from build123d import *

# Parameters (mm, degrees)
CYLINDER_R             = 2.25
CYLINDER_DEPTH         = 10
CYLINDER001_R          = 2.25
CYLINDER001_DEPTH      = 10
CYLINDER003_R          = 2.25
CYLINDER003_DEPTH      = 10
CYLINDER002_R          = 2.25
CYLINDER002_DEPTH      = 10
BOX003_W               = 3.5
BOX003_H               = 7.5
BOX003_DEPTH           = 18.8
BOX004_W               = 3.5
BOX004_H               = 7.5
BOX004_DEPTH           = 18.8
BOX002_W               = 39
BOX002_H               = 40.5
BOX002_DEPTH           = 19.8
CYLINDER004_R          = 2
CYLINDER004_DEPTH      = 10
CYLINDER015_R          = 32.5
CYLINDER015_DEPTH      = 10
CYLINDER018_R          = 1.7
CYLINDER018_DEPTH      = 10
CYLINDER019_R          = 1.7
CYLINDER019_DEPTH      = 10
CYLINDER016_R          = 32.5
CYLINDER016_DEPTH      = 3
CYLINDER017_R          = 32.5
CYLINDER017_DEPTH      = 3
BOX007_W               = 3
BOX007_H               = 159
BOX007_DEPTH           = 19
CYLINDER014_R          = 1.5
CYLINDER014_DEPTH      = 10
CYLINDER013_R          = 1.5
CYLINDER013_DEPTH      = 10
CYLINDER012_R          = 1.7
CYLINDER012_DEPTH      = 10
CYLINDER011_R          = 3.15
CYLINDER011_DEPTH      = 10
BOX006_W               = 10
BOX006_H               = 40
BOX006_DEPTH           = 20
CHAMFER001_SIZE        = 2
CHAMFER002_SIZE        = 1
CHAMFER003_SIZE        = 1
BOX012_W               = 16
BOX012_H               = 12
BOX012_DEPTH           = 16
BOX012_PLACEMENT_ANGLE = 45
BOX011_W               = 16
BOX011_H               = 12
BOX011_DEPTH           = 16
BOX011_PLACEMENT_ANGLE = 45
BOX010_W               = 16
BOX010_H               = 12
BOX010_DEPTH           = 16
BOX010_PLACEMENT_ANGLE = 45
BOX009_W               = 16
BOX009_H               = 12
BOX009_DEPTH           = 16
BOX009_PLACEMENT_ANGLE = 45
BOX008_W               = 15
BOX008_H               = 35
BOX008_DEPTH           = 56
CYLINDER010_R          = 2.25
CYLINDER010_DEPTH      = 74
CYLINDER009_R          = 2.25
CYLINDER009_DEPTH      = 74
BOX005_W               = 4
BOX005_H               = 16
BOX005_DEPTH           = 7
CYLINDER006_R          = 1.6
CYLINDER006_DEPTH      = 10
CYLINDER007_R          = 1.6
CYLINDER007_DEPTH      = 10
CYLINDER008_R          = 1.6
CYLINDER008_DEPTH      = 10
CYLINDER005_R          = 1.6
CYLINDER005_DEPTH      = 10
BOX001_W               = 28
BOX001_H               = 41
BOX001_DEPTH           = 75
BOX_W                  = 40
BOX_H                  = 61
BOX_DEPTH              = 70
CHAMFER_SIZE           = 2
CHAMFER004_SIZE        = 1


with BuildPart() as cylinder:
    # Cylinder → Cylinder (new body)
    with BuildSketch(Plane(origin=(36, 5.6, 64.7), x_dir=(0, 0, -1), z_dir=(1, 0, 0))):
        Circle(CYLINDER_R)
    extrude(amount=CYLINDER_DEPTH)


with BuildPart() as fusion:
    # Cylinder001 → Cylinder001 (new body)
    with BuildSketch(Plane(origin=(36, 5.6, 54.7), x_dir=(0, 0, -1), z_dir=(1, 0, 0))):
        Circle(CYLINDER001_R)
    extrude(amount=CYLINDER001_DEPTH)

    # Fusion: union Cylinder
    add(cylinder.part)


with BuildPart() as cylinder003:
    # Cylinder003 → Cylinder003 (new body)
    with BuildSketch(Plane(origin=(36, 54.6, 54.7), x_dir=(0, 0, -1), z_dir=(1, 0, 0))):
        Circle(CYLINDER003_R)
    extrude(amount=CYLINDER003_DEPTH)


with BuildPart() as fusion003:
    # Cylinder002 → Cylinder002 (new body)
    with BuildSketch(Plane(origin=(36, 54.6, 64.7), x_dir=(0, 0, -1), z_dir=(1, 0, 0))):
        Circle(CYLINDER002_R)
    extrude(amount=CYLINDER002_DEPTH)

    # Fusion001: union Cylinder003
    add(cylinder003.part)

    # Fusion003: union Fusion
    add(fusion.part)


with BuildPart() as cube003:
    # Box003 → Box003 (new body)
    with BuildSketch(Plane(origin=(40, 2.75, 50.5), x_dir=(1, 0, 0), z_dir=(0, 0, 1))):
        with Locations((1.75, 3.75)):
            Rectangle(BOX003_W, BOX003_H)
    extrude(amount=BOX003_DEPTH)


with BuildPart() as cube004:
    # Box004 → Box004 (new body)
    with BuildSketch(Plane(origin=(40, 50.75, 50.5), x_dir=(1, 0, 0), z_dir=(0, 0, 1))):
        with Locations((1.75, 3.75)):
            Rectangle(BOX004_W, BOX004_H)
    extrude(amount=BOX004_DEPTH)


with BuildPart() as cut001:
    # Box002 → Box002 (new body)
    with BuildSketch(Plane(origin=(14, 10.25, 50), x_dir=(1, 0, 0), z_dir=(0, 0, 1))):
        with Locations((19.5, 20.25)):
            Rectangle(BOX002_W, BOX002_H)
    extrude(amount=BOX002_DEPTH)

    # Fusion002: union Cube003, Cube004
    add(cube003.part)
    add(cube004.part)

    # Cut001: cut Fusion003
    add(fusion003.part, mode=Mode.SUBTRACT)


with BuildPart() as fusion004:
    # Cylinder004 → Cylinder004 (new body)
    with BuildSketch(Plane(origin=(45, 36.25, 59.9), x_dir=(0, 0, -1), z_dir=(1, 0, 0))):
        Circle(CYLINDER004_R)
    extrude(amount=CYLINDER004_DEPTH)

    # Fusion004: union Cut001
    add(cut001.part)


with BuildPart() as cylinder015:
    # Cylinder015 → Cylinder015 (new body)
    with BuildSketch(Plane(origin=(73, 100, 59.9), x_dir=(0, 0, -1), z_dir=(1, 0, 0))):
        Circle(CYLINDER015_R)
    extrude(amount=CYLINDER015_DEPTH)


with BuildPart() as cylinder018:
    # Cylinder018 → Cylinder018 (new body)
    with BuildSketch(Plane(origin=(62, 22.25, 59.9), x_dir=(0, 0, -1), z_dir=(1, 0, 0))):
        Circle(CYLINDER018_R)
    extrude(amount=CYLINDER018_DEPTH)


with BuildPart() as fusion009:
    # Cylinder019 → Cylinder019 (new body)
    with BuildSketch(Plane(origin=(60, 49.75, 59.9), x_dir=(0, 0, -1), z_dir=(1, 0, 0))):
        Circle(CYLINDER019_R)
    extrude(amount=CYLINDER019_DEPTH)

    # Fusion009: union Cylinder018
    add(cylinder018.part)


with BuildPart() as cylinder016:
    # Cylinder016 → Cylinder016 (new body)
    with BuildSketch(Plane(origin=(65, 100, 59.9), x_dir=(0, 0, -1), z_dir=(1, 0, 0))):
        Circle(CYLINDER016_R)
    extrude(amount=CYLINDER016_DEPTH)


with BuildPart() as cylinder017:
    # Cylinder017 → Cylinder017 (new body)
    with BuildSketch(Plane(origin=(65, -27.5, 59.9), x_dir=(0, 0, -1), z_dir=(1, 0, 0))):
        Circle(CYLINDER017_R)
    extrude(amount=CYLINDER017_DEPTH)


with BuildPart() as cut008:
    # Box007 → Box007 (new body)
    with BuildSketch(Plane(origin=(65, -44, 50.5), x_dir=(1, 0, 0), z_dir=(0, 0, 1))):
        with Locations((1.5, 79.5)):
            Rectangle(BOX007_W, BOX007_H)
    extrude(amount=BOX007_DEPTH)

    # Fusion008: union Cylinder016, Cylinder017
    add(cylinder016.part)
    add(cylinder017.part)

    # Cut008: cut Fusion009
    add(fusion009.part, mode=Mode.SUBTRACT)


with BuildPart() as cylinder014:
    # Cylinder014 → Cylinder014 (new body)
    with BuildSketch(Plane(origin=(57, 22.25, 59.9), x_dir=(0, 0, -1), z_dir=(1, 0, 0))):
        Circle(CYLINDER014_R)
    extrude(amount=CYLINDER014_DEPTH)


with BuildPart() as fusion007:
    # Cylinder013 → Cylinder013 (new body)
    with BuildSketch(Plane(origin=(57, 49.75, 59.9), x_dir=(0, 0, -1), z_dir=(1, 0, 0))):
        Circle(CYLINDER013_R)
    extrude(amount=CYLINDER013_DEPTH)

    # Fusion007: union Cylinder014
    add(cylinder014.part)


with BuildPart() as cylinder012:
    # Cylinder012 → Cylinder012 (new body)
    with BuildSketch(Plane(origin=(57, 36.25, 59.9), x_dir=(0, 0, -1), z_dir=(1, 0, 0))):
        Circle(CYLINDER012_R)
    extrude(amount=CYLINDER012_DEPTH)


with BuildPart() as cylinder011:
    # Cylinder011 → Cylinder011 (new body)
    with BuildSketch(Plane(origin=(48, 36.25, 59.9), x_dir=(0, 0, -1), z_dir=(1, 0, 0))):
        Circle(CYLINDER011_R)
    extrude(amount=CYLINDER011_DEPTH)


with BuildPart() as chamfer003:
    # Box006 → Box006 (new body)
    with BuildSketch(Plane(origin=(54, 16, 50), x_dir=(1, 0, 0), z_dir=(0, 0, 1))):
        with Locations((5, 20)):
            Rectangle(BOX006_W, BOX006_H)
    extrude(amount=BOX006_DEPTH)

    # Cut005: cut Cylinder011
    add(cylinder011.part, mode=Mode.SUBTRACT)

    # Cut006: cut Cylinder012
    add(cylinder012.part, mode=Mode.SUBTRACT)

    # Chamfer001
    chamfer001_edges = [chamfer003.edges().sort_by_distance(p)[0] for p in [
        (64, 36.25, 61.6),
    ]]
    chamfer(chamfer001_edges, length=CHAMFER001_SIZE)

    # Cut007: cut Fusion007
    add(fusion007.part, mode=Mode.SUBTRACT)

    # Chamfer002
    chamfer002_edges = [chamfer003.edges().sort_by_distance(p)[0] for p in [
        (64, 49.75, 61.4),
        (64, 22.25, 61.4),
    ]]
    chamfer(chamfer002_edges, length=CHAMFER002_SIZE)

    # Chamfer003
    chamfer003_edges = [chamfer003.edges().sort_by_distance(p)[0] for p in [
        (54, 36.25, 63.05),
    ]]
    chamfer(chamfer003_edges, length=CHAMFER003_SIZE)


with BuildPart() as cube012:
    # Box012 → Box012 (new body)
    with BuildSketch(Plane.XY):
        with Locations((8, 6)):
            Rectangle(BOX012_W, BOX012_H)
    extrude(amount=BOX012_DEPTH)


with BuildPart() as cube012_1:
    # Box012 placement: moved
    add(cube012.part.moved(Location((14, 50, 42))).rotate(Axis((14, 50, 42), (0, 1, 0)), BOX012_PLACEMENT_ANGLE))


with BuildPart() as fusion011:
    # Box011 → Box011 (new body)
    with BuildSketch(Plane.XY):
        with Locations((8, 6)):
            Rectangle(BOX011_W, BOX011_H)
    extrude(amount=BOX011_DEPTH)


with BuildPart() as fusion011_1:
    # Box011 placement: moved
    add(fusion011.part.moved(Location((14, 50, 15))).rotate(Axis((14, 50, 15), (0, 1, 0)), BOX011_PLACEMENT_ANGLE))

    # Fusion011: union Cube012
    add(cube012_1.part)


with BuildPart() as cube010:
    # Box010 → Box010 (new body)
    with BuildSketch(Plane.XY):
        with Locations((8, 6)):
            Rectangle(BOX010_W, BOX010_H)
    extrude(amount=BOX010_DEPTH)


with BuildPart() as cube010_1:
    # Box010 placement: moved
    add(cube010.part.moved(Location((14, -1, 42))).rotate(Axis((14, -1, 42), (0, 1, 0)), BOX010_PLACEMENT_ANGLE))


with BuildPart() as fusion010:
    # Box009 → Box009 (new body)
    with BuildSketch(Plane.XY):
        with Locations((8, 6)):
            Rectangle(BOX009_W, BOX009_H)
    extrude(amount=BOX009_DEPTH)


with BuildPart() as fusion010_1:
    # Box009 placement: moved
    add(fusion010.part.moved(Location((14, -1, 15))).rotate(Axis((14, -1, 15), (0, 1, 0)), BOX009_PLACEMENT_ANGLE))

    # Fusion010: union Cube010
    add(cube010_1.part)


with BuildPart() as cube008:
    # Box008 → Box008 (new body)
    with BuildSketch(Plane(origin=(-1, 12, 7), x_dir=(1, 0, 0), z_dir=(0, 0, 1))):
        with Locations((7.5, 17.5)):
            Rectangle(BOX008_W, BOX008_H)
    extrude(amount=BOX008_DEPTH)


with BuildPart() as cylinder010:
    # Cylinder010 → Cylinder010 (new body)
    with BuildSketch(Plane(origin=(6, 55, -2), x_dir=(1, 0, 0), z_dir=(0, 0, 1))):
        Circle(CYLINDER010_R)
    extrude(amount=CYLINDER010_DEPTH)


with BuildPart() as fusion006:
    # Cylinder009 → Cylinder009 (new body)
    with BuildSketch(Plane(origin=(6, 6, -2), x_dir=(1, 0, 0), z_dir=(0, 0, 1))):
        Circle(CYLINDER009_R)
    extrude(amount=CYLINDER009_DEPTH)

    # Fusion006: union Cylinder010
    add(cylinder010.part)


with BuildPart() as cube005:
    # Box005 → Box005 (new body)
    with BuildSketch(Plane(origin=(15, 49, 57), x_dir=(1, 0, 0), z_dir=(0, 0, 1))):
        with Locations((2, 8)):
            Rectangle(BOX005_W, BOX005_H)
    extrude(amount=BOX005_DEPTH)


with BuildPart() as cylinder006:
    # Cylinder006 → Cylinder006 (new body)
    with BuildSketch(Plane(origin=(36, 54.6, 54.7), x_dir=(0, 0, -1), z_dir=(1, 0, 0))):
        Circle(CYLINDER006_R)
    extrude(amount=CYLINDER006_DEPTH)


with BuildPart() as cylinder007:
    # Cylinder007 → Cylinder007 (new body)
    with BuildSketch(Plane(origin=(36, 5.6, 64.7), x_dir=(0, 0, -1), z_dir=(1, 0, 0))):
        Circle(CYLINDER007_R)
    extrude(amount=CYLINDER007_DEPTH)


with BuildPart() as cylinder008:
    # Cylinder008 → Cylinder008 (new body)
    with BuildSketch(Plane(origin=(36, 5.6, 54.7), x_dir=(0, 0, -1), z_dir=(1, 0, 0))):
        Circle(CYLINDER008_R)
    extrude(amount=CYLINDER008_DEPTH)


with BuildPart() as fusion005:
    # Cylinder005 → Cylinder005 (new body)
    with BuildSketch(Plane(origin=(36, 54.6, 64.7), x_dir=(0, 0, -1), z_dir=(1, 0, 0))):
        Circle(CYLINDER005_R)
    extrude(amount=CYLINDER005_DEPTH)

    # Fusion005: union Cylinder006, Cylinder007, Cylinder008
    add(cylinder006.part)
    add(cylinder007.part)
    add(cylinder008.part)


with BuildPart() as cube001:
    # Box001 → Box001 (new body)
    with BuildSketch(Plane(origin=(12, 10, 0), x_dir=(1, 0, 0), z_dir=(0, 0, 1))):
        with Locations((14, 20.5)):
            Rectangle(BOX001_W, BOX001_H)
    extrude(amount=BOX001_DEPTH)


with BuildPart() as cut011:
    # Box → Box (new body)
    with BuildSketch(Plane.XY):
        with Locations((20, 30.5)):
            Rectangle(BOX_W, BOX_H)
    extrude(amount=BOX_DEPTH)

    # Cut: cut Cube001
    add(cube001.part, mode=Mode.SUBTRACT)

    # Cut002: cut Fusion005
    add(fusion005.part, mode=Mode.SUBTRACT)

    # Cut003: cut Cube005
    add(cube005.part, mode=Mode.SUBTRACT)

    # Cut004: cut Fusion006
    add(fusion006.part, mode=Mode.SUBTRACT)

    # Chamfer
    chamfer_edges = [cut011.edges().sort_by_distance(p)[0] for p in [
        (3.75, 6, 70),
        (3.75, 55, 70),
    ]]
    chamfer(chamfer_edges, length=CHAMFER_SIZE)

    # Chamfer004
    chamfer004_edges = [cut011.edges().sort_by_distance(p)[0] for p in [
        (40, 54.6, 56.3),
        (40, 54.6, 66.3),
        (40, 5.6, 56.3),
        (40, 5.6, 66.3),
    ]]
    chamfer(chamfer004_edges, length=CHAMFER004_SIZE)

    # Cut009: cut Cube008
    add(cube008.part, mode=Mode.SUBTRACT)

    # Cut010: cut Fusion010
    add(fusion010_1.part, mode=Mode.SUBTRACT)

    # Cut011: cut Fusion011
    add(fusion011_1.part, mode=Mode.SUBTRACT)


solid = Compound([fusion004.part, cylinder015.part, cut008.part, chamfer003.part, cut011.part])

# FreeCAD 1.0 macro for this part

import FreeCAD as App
import Part
import Sketcher

V = App.Vector
Q = App.Units.Quantity


def edges_at(feature, points):
    """Names of the edges that pass closest to the given points."""
    edges = feature.Shape.Edges
    near = lambda p: min(range(len(edges)), key=lambda i: edges[i].distToShape(Part.Vertex(*p))[0])
    return sorted({f"Edge{near(p) + 1}" for p in points})

doc = App.newDocument("Part")
body = doc.addObject("PartDesign::Body", "Body")

# Sketch on YZ plane
sketch1 = body.newObject("Sketcher::SketchObject", "Sketch")
sketch1.AttachmentSupport = (doc.getObject("YZ_Plane"), [""])
sketch1.MapMode = "FlatFace"
sketch1.AttachmentOffset = App.Placement(V(0, 0, 36), App.Rotation())
sketch1.addGeometry(Part.Circle(V(5.6, 64.7, 0), V(0, 0, 1), 2.2), False)
sketch1.addConstraint([
    Sketcher.Constraint("Diameter", 0, Q("4.5 mm")),
    Sketcher.Constraint("DistanceX", -1, 1, 0, 3, Q("5.6 mm")),
    Sketcher.Constraint("DistanceY", -1, 1, 0, 3, Q("64.7 mm")),
])
pad1 = body.newObject("PartDesign::Pad", "Pad")
pad1.Profile = sketch1
pad1.Length = 10
body2 = doc.addObject("PartDesign::Body", "Body001")
body2.AllowCompound = True

# Sketch on YZ plane
sketch2 = body2.newObject("Sketcher::SketchObject", "Sketch001")
sketch2.AttachmentSupport = (doc.getObject("YZ_Plane001"), [""])
sketch2.MapMode = "FlatFace"
sketch2.AttachmentOffset = App.Placement(V(0, 0, 36), App.Rotation())
sketch2.addGeometry(Part.Circle(V(5.6, 54.7, 0), V(0, 0, 1), 2.2), False)
sketch2.addConstraint([
    Sketcher.Constraint("Diameter", 0, Q("4.5 mm")),
    Sketcher.Constraint("DistanceX", -1, 1, 0, 3, Q("5.6 mm")),
    Sketcher.Constraint("DistanceY", -1, 1, 0, 3, Q("54.7 mm")),
])
pad2 = body2.newObject("PartDesign::Pad", "Pad001")
pad2.Profile = sketch2
pad2.Length = 10
doc.recompute()

boolean = body2.newObject("PartDesign::Boolean", "Boolean")
boolean.Type = "Fuse"
boolean.addObjects([body])
body3 = doc.addObject("PartDesign::Body", "Body002")

# Sketch on YZ plane
sketch3 = body3.newObject("Sketcher::SketchObject", "Sketch002")
sketch3.AttachmentSupport = (doc.getObject("YZ_Plane002"), [""])
sketch3.MapMode = "FlatFace"
sketch3.AttachmentOffset = App.Placement(V(0, 0, 36), App.Rotation())
sketch3.addGeometry(Part.Circle(V(54.6, 54.7, 0), V(0, 0, 1), 2.2), False)
sketch3.addConstraint([
    Sketcher.Constraint("Diameter", 0, Q("4.5 mm")),
    Sketcher.Constraint("DistanceX", -1, 1, 0, 3, Q("54.6 mm")),
    Sketcher.Constraint("DistanceY", -1, 1, 0, 3, Q("54.7 mm")),
])
pad3 = body3.newObject("PartDesign::Pad", "Pad002")
pad3.Profile = sketch3
pad3.Length = 10
body4 = doc.addObject("PartDesign::Body", "Body003")
body4.AllowCompound = True

# Sketch on YZ plane
sketch4 = body4.newObject("Sketcher::SketchObject", "Sketch003")
sketch4.AttachmentSupport = (doc.getObject("YZ_Plane003"), [""])
sketch4.MapMode = "FlatFace"
sketch4.AttachmentOffset = App.Placement(V(0, 0, 36), App.Rotation())
sketch4.addGeometry(Part.Circle(V(54.6, 64.7, 0), V(0, 0, 1), 2.2), False)
sketch4.addConstraint([
    Sketcher.Constraint("Diameter", 0, Q("4.5 mm")),
    Sketcher.Constraint("DistanceX", -1, 1, 0, 3, Q("54.6 mm")),
    Sketcher.Constraint("DistanceY", -1, 1, 0, 3, Q("64.7 mm")),
])
pad4 = body4.newObject("PartDesign::Pad", "Pad003")
pad4.Profile = sketch4
pad4.Length = 10
doc.recompute()

boolean2 = body4.newObject("PartDesign::Boolean", "Boolean001")
boolean2.Type = "Fuse"
boolean2.addObjects([body3])
doc.recompute()

boolean3 = body4.newObject("PartDesign::Boolean", "Boolean002")
boolean3.Type = "Fuse"
boolean3.addObjects([body2])
body5 = doc.addObject("PartDesign::Body", "Body004")

# Sketch on XY plane
sketch5 = body5.newObject("Sketcher::SketchObject", "Sketch004")
sketch5.AttachmentSupport = (doc.getObject("XY_Plane004"), [""])
sketch5.MapMode = "FlatFace"
sketch5.AttachmentOffset = App.Placement(V(0, 0, 50.5), App.Rotation())
sketch5.addGeometry([
    Part.LineSegment(V(40, 10.2, 0), V(40, 2.8, 0)),
    Part.LineSegment(V(40, 2.8, 0), V(43.5, 2.8, 0)),
    Part.LineSegment(V(43.5, 2.8, 0), V(43.5, 10.2, 0)),
    Part.LineSegment(V(43.5, 10.2, 0), V(40, 10.2, 0)),
], False)
sketch5.addConstraint([
    Sketcher.Constraint("Coincident", 0, 2, 1, 1),
    Sketcher.Constraint("Coincident", 1, 2, 2, 1),
    Sketcher.Constraint("Coincident", 2, 2, 3, 1),
    Sketcher.Constraint("Coincident", 3, 2, 0, 1),
    Sketcher.Constraint("Vertical", 0),
    Sketcher.Constraint("Horizontal", 1),
    Sketcher.Constraint("Vertical", 2),
    Sketcher.Constraint("Horizontal", 3),
    Sketcher.Constraint("DistanceX", 1, 1, 1, 2, Q("3.5 mm")),
    Sketcher.Constraint("DistanceY", 0, 2, 0, 1, Q("7.5 mm")),
    Sketcher.Constraint("DistanceX", -1, 1, 0, 2, Q("40 mm")),
    Sketcher.Constraint("DistanceY", -1, 1, 0, 2, Q("2.75 mm")),
])
pad5 = body5.newObject("PartDesign::Pad", "Pad004")
pad5.Profile = sketch5
pad5.Length = 18.8
body6 = doc.addObject("PartDesign::Body", "Body005")

# Sketch on XY plane
sketch6 = body6.newObject("Sketcher::SketchObject", "Sketch005")
sketch6.AttachmentSupport = (doc.getObject("XY_Plane005"), [""])
sketch6.MapMode = "FlatFace"
sketch6.AttachmentOffset = App.Placement(V(0, 0, 50.5), App.Rotation())
sketch6.addGeometry([
    Part.LineSegment(V(40, 58.2, 0), V(40, 50.8, 0)),
    Part.LineSegment(V(40, 50.8, 0), V(43.5, 50.8, 0)),
    Part.LineSegment(V(43.5, 50.8, 0), V(43.5, 58.2, 0)),
    Part.LineSegment(V(43.5, 58.2, 0), V(40, 58.2, 0)),
], False)
sketch6.addConstraint([
    Sketcher.Constraint("Coincident", 0, 2, 1, 1),
    Sketcher.Constraint("Coincident", 1, 2, 2, 1),
    Sketcher.Constraint("Coincident", 2, 2, 3, 1),
    Sketcher.Constraint("Coincident", 3, 2, 0, 1),
    Sketcher.Constraint("Vertical", 0),
    Sketcher.Constraint("Horizontal", 1),
    Sketcher.Constraint("Vertical", 2),
    Sketcher.Constraint("Horizontal", 3),
    Sketcher.Constraint("DistanceX", 1, 1, 1, 2, Q("3.5 mm")),
    Sketcher.Constraint("DistanceY", 0, 2, 0, 1, Q("7.5 mm")),
    Sketcher.Constraint("DistanceX", -1, 1, 0, 2, Q("40 mm")),
    Sketcher.Constraint("DistanceY", -1, 1, 0, 2, Q("50.75 mm")),
])
pad6 = body6.newObject("PartDesign::Pad", "Pad005")
pad6.Profile = sketch6
pad6.Length = 18.8
body7 = doc.addObject("PartDesign::Body", "Body006")

# Sketch on XY plane
sketch7 = body7.newObject("Sketcher::SketchObject", "Sketch006")
sketch7.AttachmentSupport = (doc.getObject("XY_Plane006"), [""])
sketch7.MapMode = "FlatFace"
sketch7.AttachmentOffset = App.Placement(V(0, 0, 50), App.Rotation())
sketch7.addGeometry([
    Part.LineSegment(V(14, 51, 0), V(14, 10, 0)),
    Part.LineSegment(V(14, 10, 0), V(53, 10, 0)),
    Part.LineSegment(V(53, 10, 0), V(53, 51, 0)),
    Part.LineSegment(V(53, 51, 0), V(14, 51, 0)),
], False)
sketch7.addConstraint([
    Sketcher.Constraint("Coincident", 0, 2, 1, 1),
    Sketcher.Constraint("Coincident", 1, 2, 2, 1),
    Sketcher.Constraint("Coincident", 2, 2, 3, 1),
    Sketcher.Constraint("Coincident", 3, 2, 0, 1),
    Sketcher.Constraint("Vertical", 0),
    Sketcher.Constraint("Horizontal", 1),
    Sketcher.Constraint("Vertical", 2),
    Sketcher.Constraint("Horizontal", 3),
    Sketcher.Constraint("DistanceX", 1, 1, 1, 2, Q("39 mm")),
    Sketcher.Constraint("DistanceY", 0, 2, 0, 1, Q("40.5 mm")),
    Sketcher.Constraint("DistanceX", -1, 1, 0, 2, Q("14 mm")),
    Sketcher.Constraint("DistanceY", -1, 1, 0, 2, Q("10.25 mm")),
])
pad7 = body7.newObject("PartDesign::Pad", "Pad006")
pad7.Profile = sketch7
pad7.Length = 19.8
doc.recompute()

boolean4 = body7.newObject("PartDesign::Boolean", "Boolean003")
boolean4.Type = "Fuse"
boolean4.addObjects([body5])
doc.recompute()

boolean5 = body7.newObject("PartDesign::Boolean", "Boolean004")
boolean5.Type = "Fuse"
boolean5.addObjects([body6])
doc.recompute()

boolean6 = body7.newObject("PartDesign::Boolean", "Boolean005")
boolean6.Type = "Cut"
boolean6.addObjects([body4])
body8 = doc.addObject("PartDesign::Body", "Body007")

# Sketch on YZ plane
sketch8 = body8.newObject("Sketcher::SketchObject", "Sketch007")
sketch8.AttachmentSupport = (doc.getObject("YZ_Plane007"), [""])
sketch8.MapMode = "FlatFace"
sketch8.AttachmentOffset = App.Placement(V(0, 0, 45), App.Rotation())
sketch8.addGeometry(Part.Circle(V(36.2, 59.9, 0), V(0, 0, 1), 2), False)
sketch8.addConstraint([
    Sketcher.Constraint("Diameter", 0, Q("4 mm")),
    Sketcher.Constraint("DistanceY", -1, 1, 0, 3, Q("59.9 mm")),
    Sketcher.Constraint("DistanceX", -1, 1, 0, 3, Q("36.25 mm")),
])
pad8 = body8.newObject("PartDesign::Pad", "Pad007")
pad8.Profile = sketch8
pad8.Length = 10
doc.recompute()

boolean7 = body8.newObject("PartDesign::Boolean", "Boolean006")
boolean7.Type = "Fuse"
boolean7.addObjects([body7])
body9 = doc.addObject("PartDesign::Body", "Body008")

# Sketch on YZ plane
sketch9 = body9.newObject("Sketcher::SketchObject", "Sketch008")
sketch9.AttachmentSupport = (doc.getObject("YZ_Plane008"), [""])
sketch9.MapMode = "FlatFace"
sketch9.AttachmentOffset = App.Placement(V(0, 0, 73), App.Rotation())
sketch9.addGeometry(Part.Circle(V(100, 60, 0), V(0, 0, 1), 32), False)
sketch9.addConstraint([
    Sketcher.Constraint("Diameter", 0, Q("65 mm")),
    Sketcher.Constraint("DistanceX", -1, 1, 0, 3, Q("100 mm")),
    Sketcher.Constraint("DistanceY", -1, 1, 0, 3, Q("59.9 mm")),
])
pad9 = body9.newObject("PartDesign::Pad", "Pad008")
pad9.Profile = sketch9
pad9.Length = 10
body10 = doc.addObject("PartDesign::Body", "Body009")

# Sketch on YZ plane
sketch10 = body10.newObject("Sketcher::SketchObject", "Sketch009")
sketch10.AttachmentSupport = (doc.getObject("YZ_Plane009"), [""])
sketch10.MapMode = "FlatFace"
sketch10.AttachmentOffset = App.Placement(V(0, 0, 62), App.Rotation())
sketch10.addGeometry(Part.Circle(V(22.2, 59.9, 0), V(0, 0, 1), 1.7), False)
sketch10.addConstraint([
    Sketcher.Constraint("Diameter", 0, Q("3.4 mm")),
    Sketcher.Constraint("DistanceY", -1, 1, 0, 3, Q("59.9 mm")),
    Sketcher.Constraint("DistanceX", -1, 1, 0, 3, Q("22.25 mm")),
])
pad10 = body10.newObject("PartDesign::Pad", "Pad009")
pad10.Profile = sketch10
pad10.Length = 10
body11 = doc.addObject("PartDesign::Body", "Body010")
body11.AllowCompound = True

# Sketch on YZ plane
sketch11 = body11.newObject("Sketcher::SketchObject", "Sketch010")
sketch11.AttachmentSupport = (doc.getObject("YZ_Plane010"), [""])
sketch11.MapMode = "FlatFace"
sketch11.AttachmentOffset = App.Placement(V(0, 0, 60), App.Rotation())
sketch11.addGeometry(Part.Circle(V(49.8, 59.9, 0), V(0, 0, 1), 1.7), False)
sketch11.addConstraint([
    Sketcher.Constraint("Diameter", 0, Q("3.4 mm")),
    Sketcher.Constraint("DistanceY", -1, 1, 0, 3, Q("59.9 mm")),
    Sketcher.Constraint("DistanceX", -1, 1, 0, 3, Q("49.75 mm")),
])
pad11 = body11.newObject("PartDesign::Pad", "Pad010")
pad11.Profile = sketch11
pad11.Length = 10
doc.recompute()

boolean8 = body11.newObject("PartDesign::Boolean", "Boolean007")
boolean8.Type = "Fuse"
boolean8.addObjects([body10])
body12 = doc.addObject("PartDesign::Body", "Body011")

# Sketch on YZ plane
sketch12 = body12.newObject("Sketcher::SketchObject", "Sketch011")
sketch12.AttachmentSupport = (doc.getObject("YZ_Plane011"), [""])
sketch12.MapMode = "FlatFace"
sketch12.AttachmentOffset = App.Placement(V(0, 0, 65), App.Rotation())
sketch12.addGeometry(Part.Circle(V(100, 60, 0), V(0, 0, 1), 32), False)
sketch12.addConstraint([
    Sketcher.Constraint("Diameter", 0, Q("65 mm")),
    Sketcher.Constraint("DistanceX", -1, 1, 0, 3, Q("100 mm")),
    Sketcher.Constraint("DistanceY", -1, 1, 0, 3, Q("59.9 mm")),
])
pad12 = body12.newObject("PartDesign::Pad", "Pad011")
pad12.Profile = sketch12
pad12.Length = 3
body13 = doc.addObject("PartDesign::Body", "Body012")

# Sketch on YZ plane
sketch13 = body13.newObject("Sketcher::SketchObject", "Sketch012")
sketch13.AttachmentSupport = (doc.getObject("YZ_Plane012"), [""])
sketch13.MapMode = "FlatFace"
sketch13.AttachmentOffset = App.Placement(V(0, 0, 65), App.Rotation())
sketch13.addGeometry(Part.Circle(V(-28, 60, 0), V(0, 0, 1), 32), False)
sketch13.addConstraint([
    Sketcher.Constraint("Diameter", 0, Q("65 mm")),
    Sketcher.Constraint("DistanceX", 0, 3, -1, 1, Q("27.5 mm")),
    Sketcher.Constraint("DistanceY", -1, 1, 0, 3, Q("59.9 mm")),
])
pad13 = body13.newObject("PartDesign::Pad", "Pad012")
pad13.Profile = sketch13
pad13.Length = 3
body14 = doc.addObject("PartDesign::Body", "Body013")

# Sketch on XY plane
sketch14 = body14.newObject("Sketcher::SketchObject", "Sketch013")
sketch14.AttachmentSupport = (doc.getObject("XY_Plane013"), [""])
sketch14.MapMode = "FlatFace"
sketch14.AttachmentOffset = App.Placement(V(0, 0, 50.5), App.Rotation())
sketch14.addGeometry([
    Part.LineSegment(V(65, 115, 0), V(65, -44, 0)),
    Part.LineSegment(V(65, -44, 0), V(68, -44, 0)),
    Part.LineSegment(V(68, -44, 0), V(68, 115, 0)),
    Part.LineSegment(V(68, 115, 0), V(65, 115, 0)),
], False)
sketch14.addConstraint([
    Sketcher.Constraint("Coincident", 0, 2, 1, 1),
    Sketcher.Constraint("Coincident", 1, 2, 2, 1),
    Sketcher.Constraint("Coincident", 2, 2, 3, 1),
    Sketcher.Constraint("Coincident", 3, 2, 0, 1),
    Sketcher.Constraint("Vertical", 0),
    Sketcher.Constraint("Horizontal", 1),
    Sketcher.Constraint("Vertical", 2),
    Sketcher.Constraint("Horizontal", 3),
    Sketcher.Constraint("DistanceX", 1, 1, 1, 2, Q("3 mm")),
    Sketcher.Constraint("DistanceY", 0, 2, 0, 1, Q("159 mm")),
    Sketcher.Constraint("DistanceX", -1, 1, 0, 2, Q("65 mm")),
    Sketcher.Constraint("DistanceY", 0, 2, -1, 1, Q("44 mm")),
])
pad14 = body14.newObject("PartDesign::Pad", "Pad013")
pad14.Profile = sketch14
pad14.Length = 19
doc.recompute()

boolean9 = body14.newObject("PartDesign::Boolean", "Boolean008")
boolean9.Type = "Fuse"
boolean9.addObjects([body12])
doc.recompute()

boolean10 = body14.newObject("PartDesign::Boolean", "Boolean009")
boolean10.Type = "Fuse"
boolean10.addObjects([body13])
doc.recompute()

boolean11 = body14.newObject("PartDesign::Boolean", "Boolean010")
boolean11.Type = "Cut"
boolean11.addObjects([body11])
body15 = doc.addObject("PartDesign::Body", "Body014")

# Sketch on YZ plane
sketch15 = body15.newObject("Sketcher::SketchObject", "Sketch014")
sketch15.AttachmentSupport = (doc.getObject("YZ_Plane014"), [""])
sketch15.MapMode = "FlatFace"
sketch15.AttachmentOffset = App.Placement(V(0, 0, 57), App.Rotation())
sketch15.addGeometry(Part.Circle(V(22.2, 59.9, 0), V(0, 0, 1), 1.5), False)
sketch15.addConstraint([
    Sketcher.Constraint("Diameter", 0, Q("3 mm")),
    Sketcher.Constraint("DistanceY", -1, 1, 0, 3, Q("59.9 mm")),
    Sketcher.Constraint("DistanceX", -1, 1, 0, 3, Q("22.25 mm")),
])
pad15 = body15.newObject("PartDesign::Pad", "Pad014")
pad15.Profile = sketch15
pad15.Length = 10
body16 = doc.addObject("PartDesign::Body", "Body015")
body16.AllowCompound = True

# Sketch on YZ plane
sketch16 = body16.newObject("Sketcher::SketchObject", "Sketch015")
sketch16.AttachmentSupport = (doc.getObject("YZ_Plane015"), [""])
sketch16.MapMode = "FlatFace"
sketch16.AttachmentOffset = App.Placement(V(0, 0, 57), App.Rotation())
sketch16.addGeometry(Part.Circle(V(49.8, 59.9, 0), V(0, 0, 1), 1.5), False)
sketch16.addConstraint([
    Sketcher.Constraint("Diameter", 0, Q("3 mm")),
    Sketcher.Constraint("DistanceY", -1, 1, 0, 3, Q("59.9 mm")),
    Sketcher.Constraint("DistanceX", -1, 1, 0, 3, Q("49.75 mm")),
])
pad16 = body16.newObject("PartDesign::Pad", "Pad015")
pad16.Profile = sketch16
pad16.Length = 10
doc.recompute()

boolean12 = body16.newObject("PartDesign::Boolean", "Boolean011")
boolean12.Type = "Fuse"
boolean12.addObjects([body15])
body17 = doc.addObject("PartDesign::Body", "Body016")

# Sketch on YZ plane
sketch17 = body17.newObject("Sketcher::SketchObject", "Sketch016")
sketch17.AttachmentSupport = (doc.getObject("YZ_Plane016"), [""])
sketch17.MapMode = "FlatFace"
sketch17.AttachmentOffset = App.Placement(V(0, 0, 57), App.Rotation())
sketch17.addGeometry(Part.Circle(V(36.2, 59.9, 0), V(0, 0, 1), 1.7), False)
sketch17.addConstraint([
    Sketcher.Constraint("Diameter", 0, Q("3.4 mm")),
    Sketcher.Constraint("DistanceY", -1, 1, 0, 3, Q("59.9 mm")),
    Sketcher.Constraint("DistanceX", -1, 1, 0, 3, Q("36.25 mm")),
])
pad17 = body17.newObject("PartDesign::Pad", "Pad016")
pad17.Profile = sketch17
pad17.Length = 10
body18 = doc.addObject("PartDesign::Body", "Body017")

# Sketch on YZ plane
sketch18 = body18.newObject("Sketcher::SketchObject", "Sketch017")
sketch18.AttachmentSupport = (doc.getObject("YZ_Plane017"), [""])
sketch18.MapMode = "FlatFace"
sketch18.AttachmentOffset = App.Placement(V(0, 0, 48), App.Rotation())
sketch18.addGeometry(Part.Circle(V(36.2, 59.9, 0), V(0, 0, 1), 3.1), False)
sketch18.addConstraint([
    Sketcher.Constraint("Diameter", 0, Q("6.3 mm")),
    Sketcher.Constraint("DistanceY", -1, 1, 0, 3, Q("59.9 mm")),
    Sketcher.Constraint("DistanceX", -1, 1, 0, 3, Q("36.25 mm")),
])
pad18 = body18.newObject("PartDesign::Pad", "Pad017")
pad18.Profile = sketch18
pad18.Length = 10
body19 = doc.addObject("PartDesign::Body", "Body018")

# Sketch on XY plane
sketch19 = body19.newObject("Sketcher::SketchObject", "Sketch018")
sketch19.AttachmentSupport = (doc.getObject("XY_Plane018"), [""])
sketch19.MapMode = "FlatFace"
sketch19.AttachmentOffset = App.Placement(V(0, 0, 50), App.Rotation())
sketch19.addGeometry([
    Part.LineSegment(V(54, 56, 0), V(54, 16, 0)),
    Part.LineSegment(V(54, 16, 0), V(64, 16, 0)),
    Part.LineSegment(V(64, 16, 0), V(64, 56, 0)),
    Part.LineSegment(V(64, 56, 0), V(54, 56, 0)),
], False)
sketch19.addConstraint([
    Sketcher.Constraint("Coincident", 0, 2, 1, 1),
    Sketcher.Constraint("Coincident", 1, 2, 2, 1),
    Sketcher.Constraint("Coincident", 2, 2, 3, 1),
    Sketcher.Constraint("Coincident", 3, 2, 0, 1),
    Sketcher.Constraint("Vertical", 0),
    Sketcher.Constraint("Horizontal", 1),
    Sketcher.Constraint("Vertical", 2),
    Sketcher.Constraint("Horizontal", 3),
    Sketcher.Constraint("DistanceX", 1, 1, 1, 2, Q("10 mm")),
    Sketcher.Constraint("DistanceY", 0, 2, 0, 1, Q("40 mm")),
    Sketcher.Constraint("DistanceX", -1, 1, 0, 2, Q("54 mm")),
    Sketcher.Constraint("DistanceY", -1, 1, 0, 2, Q("16 mm")),
])
pad19 = body19.newObject("PartDesign::Pad", "Pad018")
pad19.Profile = sketch19
pad19.Length = 20
doc.recompute()

boolean13 = body19.newObject("PartDesign::Boolean", "Boolean012")
boolean13.Type = "Cut"
boolean13.addObjects([body18])
doc.recompute()

boolean14 = body19.newObject("PartDesign::Boolean", "Boolean013")
boolean14.Type = "Cut"
boolean14.addObjects([body17])
doc.recompute()

chamfer = body19.newObject("PartDesign::Chamfer", "Chamfer")
chamfer.Base = (boolean14, edges_at(boolean14, [(64, 36.25, 61.6)]))
chamfer.Size = 2
doc.recompute()

boolean15 = body19.newObject("PartDesign::Boolean", "Boolean014")
boolean15.Type = "Cut"
boolean15.addObjects([body16])
doc.recompute()

chamfer2 = body19.newObject("PartDesign::Chamfer", "Chamfer001")
chamfer2.Base = (boolean15, edges_at(boolean15, [(64, 49.75, 61.4), (64, 22.25, 61.4)]))
chamfer2.Size = 1
doc.recompute()

chamfer3 = body19.newObject("PartDesign::Chamfer", "Chamfer002")
chamfer3.Base = (chamfer2, edges_at(chamfer2, [(54, 36.25, 63.05)]))
chamfer3.Size = 1
body20 = doc.addObject("PartDesign::Body", "Body019")

# Sketch on XY plane
sketch20 = body20.newObject("Sketcher::SketchObject", "Sketch019")
sketch20.AttachmentSupport = (doc.getObject("XY_Plane019"), [""])
sketch20.MapMode = "FlatFace"
sketch20.addGeometry([
    Part.LineSegment(V(0, 12, 0), V(0, 0, 0)),
    Part.LineSegment(V(0, 0, 0), V(16, 0, 0)),
    Part.LineSegment(V(16, 0, 0), V(16, 12, 0)),
    Part.LineSegment(V(16, 12, 0), V(0, 12, 0)),
], False)
sketch20.addConstraint([
    Sketcher.Constraint("Coincident", 0, 2, 1, 1),
    Sketcher.Constraint("Coincident", 1, 2, 2, 1),
    Sketcher.Constraint("Coincident", 2, 2, 3, 1),
    Sketcher.Constraint("Coincident", 3, 2, 0, 1),
    Sketcher.Constraint("Vertical", 0),
    Sketcher.Constraint("Horizontal", 1),
    Sketcher.Constraint("Vertical", 2),
    Sketcher.Constraint("Horizontal", 3),
    Sketcher.Constraint("Coincident", 0, 2, -1, 1),
    Sketcher.Constraint("DistanceX", 1, 1, 1, 2, Q("16 mm")),
    Sketcher.Constraint("DistanceY", 0, 2, 0, 1, Q("12 mm")),
])
pad20 = body20.newObject("PartDesign::Pad", "Pad019")
pad20.Profile = sketch20
pad20.Length = 16
body21 = doc.addObject("PartDesign::Body", "Body020")
doc.recompute()

body20.Placement = App.Placement(V(14, 50, 42), App.Rotation(V(0, 1, 0), 45))
boolean16 = body21.newObject("PartDesign::Boolean", "Boolean015")
boolean16.Type = "Fuse"
boolean16.addObjects([body20])
body22 = doc.addObject("PartDesign::Body", "Body021")

# Sketch on XY plane
sketch21 = body22.newObject("Sketcher::SketchObject", "Sketch020")
sketch21.AttachmentSupport = (doc.getObject("XY_Plane021"), [""])
sketch21.MapMode = "FlatFace"
sketch21.addGeometry([
    Part.LineSegment(V(0, 12, 0), V(0, 0, 0)),
    Part.LineSegment(V(0, 0, 0), V(16, 0, 0)),
    Part.LineSegment(V(16, 0, 0), V(16, 12, 0)),
    Part.LineSegment(V(16, 12, 0), V(0, 12, 0)),
], False)
sketch21.addConstraint([
    Sketcher.Constraint("Coincident", 0, 2, 1, 1),
    Sketcher.Constraint("Coincident", 1, 2, 2, 1),
    Sketcher.Constraint("Coincident", 2, 2, 3, 1),
    Sketcher.Constraint("Coincident", 3, 2, 0, 1),
    Sketcher.Constraint("Vertical", 0),
    Sketcher.Constraint("Horizontal", 1),
    Sketcher.Constraint("Vertical", 2),
    Sketcher.Constraint("Horizontal", 3),
    Sketcher.Constraint("Coincident", 0, 2, -1, 1),
    Sketcher.Constraint("DistanceX", 1, 1, 1, 2, Q("16 mm")),
    Sketcher.Constraint("DistanceY", 0, 2, 0, 1, Q("12 mm")),
])
pad21 = body22.newObject("PartDesign::Pad", "Pad020")
pad21.Profile = sketch21
pad21.Length = 16
body23 = doc.addObject("PartDesign::Body", "Body022")
body23.AllowCompound = True
doc.recompute()

body22.Placement = App.Placement(V(14, 50, 15), App.Rotation(V(0, 1, 0), 45))
boolean17 = body23.newObject("PartDesign::Boolean", "Boolean016")
boolean17.Type = "Fuse"
boolean17.addObjects([body22])
doc.recompute()

boolean18 = body23.newObject("PartDesign::Boolean", "Boolean017")
boolean18.Type = "Fuse"
boolean18.addObjects([body21])
body24 = doc.addObject("PartDesign::Body", "Body023")

# Sketch on XY plane
sketch22 = body24.newObject("Sketcher::SketchObject", "Sketch021")
sketch22.AttachmentSupport = (doc.getObject("XY_Plane023"), [""])
sketch22.MapMode = "FlatFace"
sketch22.addGeometry([
    Part.LineSegment(V(0, 12, 0), V(0, 0, 0)),
    Part.LineSegment(V(0, 0, 0), V(16, 0, 0)),
    Part.LineSegment(V(16, 0, 0), V(16, 12, 0)),
    Part.LineSegment(V(16, 12, 0), V(0, 12, 0)),
], False)
sketch22.addConstraint([
    Sketcher.Constraint("Coincident", 0, 2, 1, 1),
    Sketcher.Constraint("Coincident", 1, 2, 2, 1),
    Sketcher.Constraint("Coincident", 2, 2, 3, 1),
    Sketcher.Constraint("Coincident", 3, 2, 0, 1),
    Sketcher.Constraint("Vertical", 0),
    Sketcher.Constraint("Horizontal", 1),
    Sketcher.Constraint("Vertical", 2),
    Sketcher.Constraint("Horizontal", 3),
    Sketcher.Constraint("Coincident", 0, 2, -1, 1),
    Sketcher.Constraint("DistanceX", 1, 1, 1, 2, Q("16 mm")),
    Sketcher.Constraint("DistanceY", 0, 2, 0, 1, Q("12 mm")),
])
pad22 = body24.newObject("PartDesign::Pad", "Pad021")
pad22.Profile = sketch22
pad22.Length = 16
body25 = doc.addObject("PartDesign::Body", "Body024")
doc.recompute()

body24.Placement = App.Placement(V(14, -1, 42), App.Rotation(V(0, 1, 0), 45))
boolean19 = body25.newObject("PartDesign::Boolean", "Boolean018")
boolean19.Type = "Fuse"
boolean19.addObjects([body24])
body26 = doc.addObject("PartDesign::Body", "Body025")

# Sketch on XY plane
sketch23 = body26.newObject("Sketcher::SketchObject", "Sketch022")
sketch23.AttachmentSupport = (doc.getObject("XY_Plane025"), [""])
sketch23.MapMode = "FlatFace"
sketch23.addGeometry([
    Part.LineSegment(V(0, 12, 0), V(0, 0, 0)),
    Part.LineSegment(V(0, 0, 0), V(16, 0, 0)),
    Part.LineSegment(V(16, 0, 0), V(16, 12, 0)),
    Part.LineSegment(V(16, 12, 0), V(0, 12, 0)),
], False)
sketch23.addConstraint([
    Sketcher.Constraint("Coincident", 0, 2, 1, 1),
    Sketcher.Constraint("Coincident", 1, 2, 2, 1),
    Sketcher.Constraint("Coincident", 2, 2, 3, 1),
    Sketcher.Constraint("Coincident", 3, 2, 0, 1),
    Sketcher.Constraint("Vertical", 0),
    Sketcher.Constraint("Horizontal", 1),
    Sketcher.Constraint("Vertical", 2),
    Sketcher.Constraint("Horizontal", 3),
    Sketcher.Constraint("Coincident", 0, 2, -1, 1),
    Sketcher.Constraint("DistanceX", 1, 1, 1, 2, Q("16 mm")),
    Sketcher.Constraint("DistanceY", 0, 2, 0, 1, Q("12 mm")),
])
pad23 = body26.newObject("PartDesign::Pad", "Pad022")
pad23.Profile = sketch23
pad23.Length = 16
body27 = doc.addObject("PartDesign::Body", "Body026")
body27.AllowCompound = True
doc.recompute()

body26.Placement = App.Placement(V(14, -1, 15), App.Rotation(V(0, 1, 0), 45))
boolean20 = body27.newObject("PartDesign::Boolean", "Boolean019")
boolean20.Type = "Fuse"
boolean20.addObjects([body26])
doc.recompute()

boolean21 = body27.newObject("PartDesign::Boolean", "Boolean020")
boolean21.Type = "Fuse"
boolean21.addObjects([body25])
body28 = doc.addObject("PartDesign::Body", "Body027")

# Sketch on XY plane
sketch24 = body28.newObject("Sketcher::SketchObject", "Sketch023")
sketch24.AttachmentSupport = (doc.getObject("XY_Plane027"), [""])
sketch24.MapMode = "FlatFace"
sketch24.AttachmentOffset = App.Placement(V(0, 0, 7), App.Rotation())
sketch24.addGeometry([
    Part.LineSegment(V(-1, 47, 0), V(-1, 12, 0)),
    Part.LineSegment(V(-1, 12, 0), V(14, 12, 0)),
    Part.LineSegment(V(14, 12, 0), V(14, 47, 0)),
    Part.LineSegment(V(14, 47, 0), V(-1, 47, 0)),
], False)
sketch24.addConstraint([
    Sketcher.Constraint("Coincident", 0, 2, 1, 1),
    Sketcher.Constraint("Coincident", 1, 2, 2, 1),
    Sketcher.Constraint("Coincident", 2, 2, 3, 1),
    Sketcher.Constraint("Coincident", 3, 2, 0, 1),
    Sketcher.Constraint("Vertical", 0),
    Sketcher.Constraint("Horizontal", 1),
    Sketcher.Constraint("Vertical", 2),
    Sketcher.Constraint("Horizontal", 3),
    Sketcher.Constraint("DistanceX", 1, 1, 1, 2, Q("15 mm")),
    Sketcher.Constraint("DistanceY", 0, 2, 0, 1, Q("35 mm")),
    Sketcher.Constraint("DistanceX", 0, 2, -1, 1, Q("1 mm")),
    Sketcher.Constraint("DistanceY", -1, 1, 0, 2, Q("12 mm")),
])
pad24 = body28.newObject("PartDesign::Pad", "Pad023")
pad24.Profile = sketch24
pad24.Length = 56
body29 = doc.addObject("PartDesign::Body", "Body028")

# Sketch on XY plane
sketch25 = body29.newObject("Sketcher::SketchObject", "Sketch024")
sketch25.AttachmentSupport = (doc.getObject("XY_Plane028"), [""])
sketch25.MapMode = "FlatFace"
sketch25.AttachmentOffset = App.Placement(V(0, 0, -2), App.Rotation())
sketch25.addGeometry(Part.Circle(V(6, 55, 0), V(0, 0, 1), 2.2), False)
sketch25.addConstraint([
    Sketcher.Constraint("Diameter", 0, Q("4.5 mm")),
    Sketcher.Constraint("DistanceX", -1, 1, 0, 3, Q("6 mm")),
    Sketcher.Constraint("DistanceY", -1, 1, 0, 3, Q("55 mm")),
])
pad25 = body29.newObject("PartDesign::Pad", "Pad024")
pad25.Profile = sketch25
pad25.Length = 74
body30 = doc.addObject("PartDesign::Body", "Body029")
body30.AllowCompound = True

# Sketch on XY plane
sketch26 = body30.newObject("Sketcher::SketchObject", "Sketch025")
sketch26.AttachmentSupport = (doc.getObject("XY_Plane029"), [""])
sketch26.MapMode = "FlatFace"
sketch26.AttachmentOffset = App.Placement(V(0, 0, -2), App.Rotation())
sketch26.addGeometry(Part.Circle(V(6, 6, 0), V(0, 0, 1), 2.2), False)
sketch26.addConstraint([
    Sketcher.Constraint("Diameter", 0, Q("4.5 mm")),
    Sketcher.Constraint("DistanceX", -1, 1, 0, 3, Q("6 mm")),
    Sketcher.Constraint("DistanceY", -1, 1, 0, 3, Q("6 mm")),
])
pad26 = body30.newObject("PartDesign::Pad", "Pad025")
pad26.Profile = sketch26
pad26.Length = 74
doc.recompute()

boolean22 = body30.newObject("PartDesign::Boolean", "Boolean021")
boolean22.Type = "Fuse"
boolean22.addObjects([body29])
body31 = doc.addObject("PartDesign::Body", "Body030")

# Sketch on XY plane
sketch27 = body31.newObject("Sketcher::SketchObject", "Sketch026")
sketch27.AttachmentSupport = (doc.getObject("XY_Plane030"), [""])
sketch27.MapMode = "FlatFace"
sketch27.AttachmentOffset = App.Placement(V(0, 0, 57), App.Rotation())
sketch27.addGeometry([
    Part.LineSegment(V(15, 65, 0), V(15, 49, 0)),
    Part.LineSegment(V(15, 49, 0), V(19, 49, 0)),
    Part.LineSegment(V(19, 49, 0), V(19, 65, 0)),
    Part.LineSegment(V(19, 65, 0), V(15, 65, 0)),
], False)
sketch27.addConstraint([
    Sketcher.Constraint("Coincident", 0, 2, 1, 1),
    Sketcher.Constraint("Coincident", 1, 2, 2, 1),
    Sketcher.Constraint("Coincident", 2, 2, 3, 1),
    Sketcher.Constraint("Coincident", 3, 2, 0, 1),
    Sketcher.Constraint("Vertical", 0),
    Sketcher.Constraint("Horizontal", 1),
    Sketcher.Constraint("Vertical", 2),
    Sketcher.Constraint("Horizontal", 3),
    Sketcher.Constraint("DistanceX", 1, 1, 1, 2, Q("4 mm")),
    Sketcher.Constraint("DistanceY", 0, 2, 0, 1, Q("16 mm")),
    Sketcher.Constraint("DistanceX", -1, 1, 0, 2, Q("15 mm")),
    Sketcher.Constraint("DistanceY", -1, 1, 0, 2, Q("49 mm")),
])
pad27 = body31.newObject("PartDesign::Pad", "Pad026")
pad27.Profile = sketch27
pad27.Length = 7
body32 = doc.addObject("PartDesign::Body", "Body031")

# Sketch on YZ plane
sketch28 = body32.newObject("Sketcher::SketchObject", "Sketch027")
sketch28.AttachmentSupport = (doc.getObject("YZ_Plane031"), [""])
sketch28.MapMode = "FlatFace"
sketch28.AttachmentOffset = App.Placement(V(0, 0, 36), App.Rotation())
sketch28.addGeometry(Part.Circle(V(54.6, 54.7, 0), V(0, 0, 1), 1.6), False)
sketch28.addConstraint([
    Sketcher.Constraint("Diameter", 0, Q("3.2 mm")),
    Sketcher.Constraint("DistanceX", -1, 1, 0, 3, Q("54.6 mm")),
    Sketcher.Constraint("DistanceY", -1, 1, 0, 3, Q("54.7 mm")),
])
pad28 = body32.newObject("PartDesign::Pad", "Pad027")
pad28.Profile = sketch28
pad28.Length = 10
body33 = doc.addObject("PartDesign::Body", "Body032")

# Sketch on YZ plane
sketch29 = body33.newObject("Sketcher::SketchObject", "Sketch028")
sketch29.AttachmentSupport = (doc.getObject("YZ_Plane032"), [""])
sketch29.MapMode = "FlatFace"
sketch29.AttachmentOffset = App.Placement(V(0, 0, 36), App.Rotation())
sketch29.addGeometry(Part.Circle(V(5.6, 64.7, 0), V(0, 0, 1), 1.6), False)
sketch29.addConstraint([
    Sketcher.Constraint("Diameter", 0, Q("3.2 mm")),
    Sketcher.Constraint("DistanceX", -1, 1, 0, 3, Q("5.6 mm")),
    Sketcher.Constraint("DistanceY", -1, 1, 0, 3, Q("64.7 mm")),
])
pad29 = body33.newObject("PartDesign::Pad", "Pad028")
pad29.Profile = sketch29
pad29.Length = 10
body34 = doc.addObject("PartDesign::Body", "Body033")

# Sketch on YZ plane
sketch30 = body34.newObject("Sketcher::SketchObject", "Sketch029")
sketch30.AttachmentSupport = (doc.getObject("YZ_Plane033"), [""])
sketch30.MapMode = "FlatFace"
sketch30.AttachmentOffset = App.Placement(V(0, 0, 36), App.Rotation())
sketch30.addGeometry(Part.Circle(V(5.6, 54.7, 0), V(0, 0, 1), 1.6), False)
sketch30.addConstraint([
    Sketcher.Constraint("Diameter", 0, Q("3.2 mm")),
    Sketcher.Constraint("DistanceX", -1, 1, 0, 3, Q("5.6 mm")),
    Sketcher.Constraint("DistanceY", -1, 1, 0, 3, Q("54.7 mm")),
])
pad30 = body34.newObject("PartDesign::Pad", "Pad029")
pad30.Profile = sketch30
pad30.Length = 10
body35 = doc.addObject("PartDesign::Body", "Body034")
body35.AllowCompound = True

# Sketch on YZ plane
sketch31 = body35.newObject("Sketcher::SketchObject", "Sketch030")
sketch31.AttachmentSupport = (doc.getObject("YZ_Plane034"), [""])
sketch31.MapMode = "FlatFace"
sketch31.AttachmentOffset = App.Placement(V(0, 0, 36), App.Rotation())
sketch31.addGeometry(Part.Circle(V(54.6, 64.7, 0), V(0, 0, 1), 1.6), False)
sketch31.addConstraint([
    Sketcher.Constraint("Diameter", 0, Q("3.2 mm")),
    Sketcher.Constraint("DistanceX", -1, 1, 0, 3, Q("54.6 mm")),
    Sketcher.Constraint("DistanceY", -1, 1, 0, 3, Q("64.7 mm")),
])
pad31 = body35.newObject("PartDesign::Pad", "Pad030")
pad31.Profile = sketch31
pad31.Length = 10
doc.recompute()

boolean23 = body35.newObject("PartDesign::Boolean", "Boolean022")
boolean23.Type = "Fuse"
boolean23.addObjects([body32])
doc.recompute()

boolean24 = body35.newObject("PartDesign::Boolean", "Boolean023")
boolean24.Type = "Fuse"
boolean24.addObjects([body33])
doc.recompute()

boolean25 = body35.newObject("PartDesign::Boolean", "Boolean024")
boolean25.Type = "Fuse"
boolean25.addObjects([body34])
body36 = doc.addObject("PartDesign::Body", "Body035")

# Sketch on XY plane
sketch32 = body36.newObject("Sketcher::SketchObject", "Sketch031")
sketch32.AttachmentSupport = (doc.getObject("XY_Plane035"), [""])
sketch32.MapMode = "FlatFace"
sketch32.addGeometry([
    Part.LineSegment(V(12, 51, 0), V(12, 10, 0)),
    Part.LineSegment(V(12, 10, 0), V(40, 10, 0)),
    Part.LineSegment(V(40, 10, 0), V(40, 51, 0)),
    Part.LineSegment(V(40, 51, 0), V(12, 51, 0)),
], False)
sketch32.addConstraint([
    Sketcher.Constraint("Coincident", 0, 2, 1, 1),
    Sketcher.Constraint("Coincident", 1, 2, 2, 1),
    Sketcher.Constraint("Coincident", 2, 2, 3, 1),
    Sketcher.Constraint("Coincident", 3, 2, 0, 1),
    Sketcher.Constraint("Vertical", 0),
    Sketcher.Constraint("Horizontal", 1),
    Sketcher.Constraint("Vertical", 2),
    Sketcher.Constraint("Horizontal", 3),
    Sketcher.Constraint("DistanceX", 1, 1, 1, 2, Q("28 mm")),
    Sketcher.Constraint("DistanceY", 0, 2, 0, 1, Q("41 mm")),
    Sketcher.Constraint("DistanceX", -1, 1, 0, 2, Q("12 mm")),
    Sketcher.Constraint("DistanceY", -1, 1, 0, 2, Q("10 mm")),
])
pad32 = body36.newObject("PartDesign::Pad", "Pad031")
pad32.Profile = sketch32
pad32.Length = 75
body37 = doc.addObject("PartDesign::Body", "Body036")

# Sketch on XY plane
sketch33 = body37.newObject("Sketcher::SketchObject", "Sketch032")
sketch33.AttachmentSupport = (doc.getObject("XY_Plane036"), [""])
sketch33.MapMode = "FlatFace"
sketch33.addGeometry([
    Part.LineSegment(V(0, 61, 0), V(0, 0, 0)),
    Part.LineSegment(V(0, 0, 0), V(40, 0, 0)),
    Part.LineSegment(V(40, 0, 0), V(40, 61, 0)),
    Part.LineSegment(V(40, 61, 0), V(0, 61, 0)),
], False)
sketch33.addConstraint([
    Sketcher.Constraint("Coincident", 0, 2, 1, 1),
    Sketcher.Constraint("Coincident", 1, 2, 2, 1),
    Sketcher.Constraint("Coincident", 2, 2, 3, 1),
    Sketcher.Constraint("Coincident", 3, 2, 0, 1),
    Sketcher.Constraint("Vertical", 0),
    Sketcher.Constraint("Horizontal", 1),
    Sketcher.Constraint("Vertical", 2),
    Sketcher.Constraint("Horizontal", 3),
    Sketcher.Constraint("Coincident", 0, 2, -1, 1),
    Sketcher.Constraint("DistanceX", 1, 1, 1, 2, Q("40 mm")),
    Sketcher.Constraint("DistanceY", 0, 2, 0, 1, Q("61 mm")),
])
pad33 = body37.newObject("PartDesign::Pad", "Pad032")
pad33.Profile = sketch33
pad33.Length = 70
doc.recompute()

boolean26 = body37.newObject("PartDesign::Boolean", "Boolean025")
boolean26.Type = "Cut"
boolean26.addObjects([body36])
doc.recompute()

boolean27 = body37.newObject("PartDesign::Boolean", "Boolean026")
boolean27.Type = "Cut"
boolean27.addObjects([body35])
doc.recompute()

boolean28 = body37.newObject("PartDesign::Boolean", "Boolean027")
boolean28.Type = "Cut"
boolean28.addObjects([body31])
doc.recompute()

boolean29 = body37.newObject("PartDesign::Boolean", "Boolean028")
boolean29.Type = "Cut"
boolean29.addObjects([body30])
doc.recompute()

chamfer4 = body37.newObject("PartDesign::Chamfer", "Chamfer003")
chamfer4.Base = (boolean29, edges_at(boolean29, [(3.75, 6, 70), (3.75, 55, 70)]))
chamfer4.Size = 2
doc.recompute()

chamfer5 = body37.newObject("PartDesign::Chamfer", "Chamfer004")
chamfer5.Base = (chamfer4, edges_at(chamfer4, [
    (40, 54.6, 56.3),
    (40, 54.6, 66.3),
    (40, 5.6, 56.3),
    (40, 5.6, 66.3),
]))
chamfer5.Size = 1
doc.recompute()

boolean30 = body37.newObject("PartDesign::Boolean", "Boolean029")
boolean30.Type = "Cut"
boolean30.addObjects([body28])
doc.recompute()

boolean31 = body37.newObject("PartDesign::Boolean", "Boolean030")
boolean31.Type = "Cut"
boolean31.addObjects([body27])
doc.recompute()

boolean32 = body37.newObject("PartDesign::Boolean", "Boolean031")
boolean32.Type = "Cut"
boolean32.addObjects([body23])

doc.recompute()
